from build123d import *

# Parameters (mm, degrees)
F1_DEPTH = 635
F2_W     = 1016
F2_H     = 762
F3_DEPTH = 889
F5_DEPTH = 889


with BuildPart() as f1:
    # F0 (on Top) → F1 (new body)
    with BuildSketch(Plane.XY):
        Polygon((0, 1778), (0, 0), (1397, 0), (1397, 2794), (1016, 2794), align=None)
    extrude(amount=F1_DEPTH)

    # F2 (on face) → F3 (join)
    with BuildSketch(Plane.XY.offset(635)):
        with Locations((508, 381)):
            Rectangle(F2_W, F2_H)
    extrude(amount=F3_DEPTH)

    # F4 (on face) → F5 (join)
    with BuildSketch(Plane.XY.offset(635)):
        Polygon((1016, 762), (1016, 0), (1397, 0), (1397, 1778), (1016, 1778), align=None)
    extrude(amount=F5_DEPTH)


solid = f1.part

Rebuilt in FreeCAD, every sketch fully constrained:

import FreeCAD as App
import Part
import Sketcher
from FreeCAD import Vector
Q = App.Units.Quantity

doc = App.newDocument("Part")
body = doc.addObject("PartDesign::Body", "Body")

# Sketch on XY plane
sketch1 = body.newObject("Sketcher::SketchObject", "Sketch")
sketch1.AttachmentSupport = (doc.getObject("XY_Plane"), [""])
sketch1.MapMode = "FlatFace"
sketch1.addGeometry(Part.LineSegment(Vector(0, 1778, 0), Vector(0, 0, 0)), False)
sketch1.addGeometry(Part.LineSegment(Vector(0, 0, 0), Vector(1397, 0, 0)), False)
sketch1.addGeometry(Part.LineSegment(Vector(1397, 0, 0), Vector(1397, 2794, 0)), False)
sketch1.addGeometry(Part.LineSegment(Vector(1397, 2794, 0), Vector(1016, 2794, 0)), False)
sketch1.addGeometry(Part.LineSegment(Vector(1016, 2794, 0), Vector(0, 1778, 0)), False)
sketch1.addConstraint(Sketcher.Constraint("Coincident", 0, 2, 1, 1))
sketch1.addConstraint(Sketcher.Constraint("Coincident", 1, 2, 2, 1))
sketch1.addConstraint(Sketcher.Constraint("Coincident", 2, 2, 3, 1))
sketch1.addConstraint(Sketcher.Constraint("Coincident", 3, 2, 4, 1))
sketch1.addConstraint(Sketcher.Constraint("Coincident", 4, 2, 0, 1))
sketch1.addConstraint(Sketcher.Constraint("Vertical", 0))
sketch1.addConstraint(Sketcher.Constraint("Horizontal", 1))
sketch1.addConstraint(Sketcher.Constraint("Vertical", 2))
sketch1.addConstraint(Sketcher.Constraint("Horizontal", 3))
sketch1.addConstraint(Sketcher.Constraint("Coincident", 0, 2, -1, 1))
sketch1.addConstraint(Sketcher.Constraint("DistanceX", 1, 1, 1, 2, Q("55 in")))
sketch1.addConstraint(Sketcher.Constraint("DistanceX", 3, 2, 3, 1, Q("15 in")))
sketch1.addConstraint(Sketcher.Constraint("DistanceY", 0, 2, 0, 1, Q("70 in")))
sketch1.addConstraint(Sketcher.Constraint("DistanceY", 2, 1, 2, 2, Q("110 in")))
pad1 = body.newObject("PartDesign::Pad", "Pad")
pad1.Profile = sketch1
pad1.Length = Q("25 in")

# Sketch on XY plane
sketch2 = body.newObject("Sketcher::SketchObject", "Sketch001")
sketch2.AttachmentSupport = (doc.getObject("XY_Plane"), [""])
sketch2.MapMode = "FlatFace"
sketch2.AttachmentOffset = App.Placement(Vector(0, 0, 25 * 25.4), App.Rotation())
sketch2.addGeometry(Part.LineSegment(Vector(0, 762, 0), Vector(0, 0, 0)), False)
sketch2.addGeometry(Part.LineSegment(Vector(0, 0, 0), Vector(1016, 0, 0)), False)
sketch2.addGeometry(Part.LineSegment(Vector(1016, 0, 0), Vector(1016, 762, 0)), False)
sketch2.addGeometry(Part.LineSegment(Vector(1016, 762, 0), Vector(0, 762, 0)), False)
sketch2.addConstraint(Sketcher.Constraint("Coincident", 0, 2, 1, 1))
sketch2.addConstraint(Sketcher.Constraint("Coincident", 1, 2, 2, 1))
sketch2.addConstraint(Sketcher.Constraint("Coincident", 2, 2, 3, 1))
sketch2.addConstraint(Sketcher.Constraint("Coincident", 3, 2, 0, 1))
sketch2.addConstraint(Sketcher.Constraint("Vertical", 0))
sketch2.addConstraint(Sketcher.Constraint("Horizontal", 1))
sketch2.addConstraint(Sketcher.Constraint("Vertical", 2))
sketch2.addConstraint(Sketcher.Constraint("Horizontal", 3))
sketch2.addConstraint(Sketcher.Constraint("Coincident", 0, 2, -1, 1))
sketch2.addConstraint(Sketcher.Constraint("DistanceX", 1, 1, 1, 2, Q("40 in")))
sketch2.addConstraint(Sketcher.Constraint("DistanceY", 0, 2, 0, 1, Q("30 in")))
pad2 = body.newObject("PartDesign::Pad", "Pad001")
pad2.Profile = sketch2
pad2.Length = Q("35 in")

# Sketch on XY plane
sketch3 = body.newObject("Sketcher::SketchObject", "Sketch002")
sketch3.AttachmentSupport = (doc.getObject("XY_Plane"), [""])
sketch3.MapMode = "FlatFace"
sketch3.AttachmentOffset = App.Placement(Vector(0, 0, 25 * 25.4), App.Rotation())
sketch3.addGeometry(Part.LineSegment(Vector(1016, 0, 0), Vector(1397, 0, 0)), False)
sketch3.addGeometry(Part.LineSegment(Vector(1397, 0, 0), Vector(1397, 1778, 0)), False)
sketch3.addGeometry(Part.LineSegment(Vector(1397, 1778, 0), Vector(1016, 1778, 0)), False)
sketch3.addGeometry(Part.LineSegment(Vector(1016, 1778, 0), Vector(1016, 0, 0)), False)
sketch3.addConstraint(Sketcher.Constraint("Coincident", 0, 2, 1, 1))
sketch3.addConstraint(Sketcher.Constraint("Coincident", 1, 2, 2, 1))
sketch3.addConstraint(Sketcher.Constraint("Coincident", 2, 2, 3, 1))
sketch3.addConstraint(Sketcher.Constraint("Coincident", 3, 2, 0, 1))
sketch3.addConstraint(Sketcher.Constraint("Horizontal", 0))
sketch3.addConstraint(Sketcher.Constraint("Vertical", 1))
sketch3.addConstraint(Sketcher.Constraint("Horizontal", 2))
sketch3.addConstraint(Sketcher.Constraint("Vertical", 3))
sketch3.addConstraint(Sketcher.Constraint("PointOnObject", 0, 2, -1))
sketch3.addConstraint(Sketcher.Constraint("DistanceX", 0, 1, 0, 2, Q("15 in")))
sketch3.addConstraint(Sketcher.Constraint("DistanceY", 1, 1, 1, 2, Q("70 in")))
sketch3.addConstraint(Sketcher.Constraint("DistanceX", -1, 1, 0, 2, Q("55 in")))
pad3 = body.newObject("PartDesign::Pad", "Pad002")
pad3.Profile = sketch3
pad3.Length = Q("35 in")

doc.recompute()
